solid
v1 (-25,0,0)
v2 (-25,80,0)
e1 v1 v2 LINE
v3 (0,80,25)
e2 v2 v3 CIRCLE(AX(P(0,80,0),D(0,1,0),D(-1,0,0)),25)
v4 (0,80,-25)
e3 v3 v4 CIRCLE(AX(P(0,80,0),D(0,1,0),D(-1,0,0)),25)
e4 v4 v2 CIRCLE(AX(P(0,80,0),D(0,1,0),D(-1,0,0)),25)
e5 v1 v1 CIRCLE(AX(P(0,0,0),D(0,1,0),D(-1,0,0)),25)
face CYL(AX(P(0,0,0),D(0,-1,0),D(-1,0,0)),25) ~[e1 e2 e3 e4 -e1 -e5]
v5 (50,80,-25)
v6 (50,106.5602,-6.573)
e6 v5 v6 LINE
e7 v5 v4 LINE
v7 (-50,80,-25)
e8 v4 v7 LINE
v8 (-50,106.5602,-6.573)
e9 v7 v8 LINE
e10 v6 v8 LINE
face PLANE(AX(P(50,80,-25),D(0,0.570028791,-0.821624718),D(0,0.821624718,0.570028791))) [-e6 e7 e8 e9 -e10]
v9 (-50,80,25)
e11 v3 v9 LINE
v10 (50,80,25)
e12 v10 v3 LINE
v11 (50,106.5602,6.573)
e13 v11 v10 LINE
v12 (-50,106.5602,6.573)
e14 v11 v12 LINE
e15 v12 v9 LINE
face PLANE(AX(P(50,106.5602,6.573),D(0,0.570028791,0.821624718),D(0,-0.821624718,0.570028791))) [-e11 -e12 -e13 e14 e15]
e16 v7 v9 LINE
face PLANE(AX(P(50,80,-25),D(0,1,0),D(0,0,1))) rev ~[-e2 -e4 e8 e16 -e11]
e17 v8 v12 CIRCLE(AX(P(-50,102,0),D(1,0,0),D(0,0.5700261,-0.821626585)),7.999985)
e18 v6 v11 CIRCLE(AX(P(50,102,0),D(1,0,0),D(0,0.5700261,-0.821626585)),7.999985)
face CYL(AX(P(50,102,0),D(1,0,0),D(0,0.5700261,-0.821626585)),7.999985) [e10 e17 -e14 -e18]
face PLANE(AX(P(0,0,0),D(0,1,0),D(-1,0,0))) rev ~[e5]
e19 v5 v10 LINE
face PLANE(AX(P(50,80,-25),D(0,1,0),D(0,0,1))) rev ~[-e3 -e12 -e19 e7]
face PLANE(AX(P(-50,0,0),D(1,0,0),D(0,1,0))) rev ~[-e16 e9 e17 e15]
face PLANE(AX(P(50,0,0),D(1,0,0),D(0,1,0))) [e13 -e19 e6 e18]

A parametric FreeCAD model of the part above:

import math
import FreeCAD as App
import Part
import Sketcher

V = App.Vector

doc = App.newDocument("Part")
body = doc.addObject("PartDesign::Body", "Body")

sketch1 = body.newObject("Sketcher::SketchObject", "Sketch")
sketch1.AttachmentSupport = (doc.getObject("XZ_Plane"), [""])
sketch1.MapMode = "FlatFace"
sketch1.addGeometry(Part.Circle(V(0, 0, 0), V(0, 0, 1), 25), False)
sketch1.addConstraint(Sketcher.Constraint("Coincident", 0, 3, -1, 1))
sketch1.addConstraint(Sketcher.Constraint("Diameter", 0, 50.0))
pad1 = body.newObject("PartDesign::Pad", "Pad")
pad1.Profile = sketch1
pad1.Length = 80
pad1.Reversed = True

sketch2 = body.newObject("Sketcher::SketchObject", "Sketch001")
sketch2.AttachmentSupport = (doc.getObject("YZ_Plane"), [""])
sketch2.MapMode = "FlatFace"
sketch2.AttachmentOffset = App.Placement(V(0, 0, 50), App.Rotation())
sketch2.addGeometry(Part.LineSegment(V(80, 25, 0), V(80, -25, 0)), False)
sketch2.addGeometry(Part.LineSegment(V(80, -25, 0), V(106.5602, -6.573, 0)), False)
sketch2.addGeometry(Part.ArcOfCircle(Part.Circle(V(102, 0, 0), V(0, 0, 1), 7.999985), math.radians(-55.247954), math.radians(55.247954)), False)
sketch2.addGeometry(Part.LineSegment(V(106.5602, 6.573, 0), V(80, 25, 0)), False)
sketch2.addConstraint(Sketcher.Constraint("Coincident", 0, 2, 1, 1))
sketch2.addConstraint(Sketcher.Constraint("Tangent", 1, 2, 2, 1))
sketch2.addConstraint(Sketcher.Constraint("Tangent", 2, 2, 3, 1))
sketch2.addConstraint(Sketcher.Constraint("Coincident", 3, 2, 0, 1))
sketch2.addConstraint(Sketcher.Constraint("Vertical", 0))
sketch2.addConstraint(Sketcher.Constraint("Symmetric", 1, 2, 2, 2, -1))
sketch2.addConstraint(Sketcher.Constraint("Radius", 2, 8.0))
sketch2.addConstraint(Sketcher.Constraint("DistanceY", 0, 2, 0, 1, 50.0))
sketch2.addConstraint(Sketcher.Constraint("DistanceX", -1, 1, 2, 3, 102.0))
sketch2.addConstraint(Sketcher.Constraint("DistanceX", -1, 1, 0, 2, 80.0))
pad2 = body.newObject("PartDesign::Pad", "Pad001")
pad2.Profile = sketch2
pad2.Length = 100
pad2.Reversed = True

doc.recompute()
